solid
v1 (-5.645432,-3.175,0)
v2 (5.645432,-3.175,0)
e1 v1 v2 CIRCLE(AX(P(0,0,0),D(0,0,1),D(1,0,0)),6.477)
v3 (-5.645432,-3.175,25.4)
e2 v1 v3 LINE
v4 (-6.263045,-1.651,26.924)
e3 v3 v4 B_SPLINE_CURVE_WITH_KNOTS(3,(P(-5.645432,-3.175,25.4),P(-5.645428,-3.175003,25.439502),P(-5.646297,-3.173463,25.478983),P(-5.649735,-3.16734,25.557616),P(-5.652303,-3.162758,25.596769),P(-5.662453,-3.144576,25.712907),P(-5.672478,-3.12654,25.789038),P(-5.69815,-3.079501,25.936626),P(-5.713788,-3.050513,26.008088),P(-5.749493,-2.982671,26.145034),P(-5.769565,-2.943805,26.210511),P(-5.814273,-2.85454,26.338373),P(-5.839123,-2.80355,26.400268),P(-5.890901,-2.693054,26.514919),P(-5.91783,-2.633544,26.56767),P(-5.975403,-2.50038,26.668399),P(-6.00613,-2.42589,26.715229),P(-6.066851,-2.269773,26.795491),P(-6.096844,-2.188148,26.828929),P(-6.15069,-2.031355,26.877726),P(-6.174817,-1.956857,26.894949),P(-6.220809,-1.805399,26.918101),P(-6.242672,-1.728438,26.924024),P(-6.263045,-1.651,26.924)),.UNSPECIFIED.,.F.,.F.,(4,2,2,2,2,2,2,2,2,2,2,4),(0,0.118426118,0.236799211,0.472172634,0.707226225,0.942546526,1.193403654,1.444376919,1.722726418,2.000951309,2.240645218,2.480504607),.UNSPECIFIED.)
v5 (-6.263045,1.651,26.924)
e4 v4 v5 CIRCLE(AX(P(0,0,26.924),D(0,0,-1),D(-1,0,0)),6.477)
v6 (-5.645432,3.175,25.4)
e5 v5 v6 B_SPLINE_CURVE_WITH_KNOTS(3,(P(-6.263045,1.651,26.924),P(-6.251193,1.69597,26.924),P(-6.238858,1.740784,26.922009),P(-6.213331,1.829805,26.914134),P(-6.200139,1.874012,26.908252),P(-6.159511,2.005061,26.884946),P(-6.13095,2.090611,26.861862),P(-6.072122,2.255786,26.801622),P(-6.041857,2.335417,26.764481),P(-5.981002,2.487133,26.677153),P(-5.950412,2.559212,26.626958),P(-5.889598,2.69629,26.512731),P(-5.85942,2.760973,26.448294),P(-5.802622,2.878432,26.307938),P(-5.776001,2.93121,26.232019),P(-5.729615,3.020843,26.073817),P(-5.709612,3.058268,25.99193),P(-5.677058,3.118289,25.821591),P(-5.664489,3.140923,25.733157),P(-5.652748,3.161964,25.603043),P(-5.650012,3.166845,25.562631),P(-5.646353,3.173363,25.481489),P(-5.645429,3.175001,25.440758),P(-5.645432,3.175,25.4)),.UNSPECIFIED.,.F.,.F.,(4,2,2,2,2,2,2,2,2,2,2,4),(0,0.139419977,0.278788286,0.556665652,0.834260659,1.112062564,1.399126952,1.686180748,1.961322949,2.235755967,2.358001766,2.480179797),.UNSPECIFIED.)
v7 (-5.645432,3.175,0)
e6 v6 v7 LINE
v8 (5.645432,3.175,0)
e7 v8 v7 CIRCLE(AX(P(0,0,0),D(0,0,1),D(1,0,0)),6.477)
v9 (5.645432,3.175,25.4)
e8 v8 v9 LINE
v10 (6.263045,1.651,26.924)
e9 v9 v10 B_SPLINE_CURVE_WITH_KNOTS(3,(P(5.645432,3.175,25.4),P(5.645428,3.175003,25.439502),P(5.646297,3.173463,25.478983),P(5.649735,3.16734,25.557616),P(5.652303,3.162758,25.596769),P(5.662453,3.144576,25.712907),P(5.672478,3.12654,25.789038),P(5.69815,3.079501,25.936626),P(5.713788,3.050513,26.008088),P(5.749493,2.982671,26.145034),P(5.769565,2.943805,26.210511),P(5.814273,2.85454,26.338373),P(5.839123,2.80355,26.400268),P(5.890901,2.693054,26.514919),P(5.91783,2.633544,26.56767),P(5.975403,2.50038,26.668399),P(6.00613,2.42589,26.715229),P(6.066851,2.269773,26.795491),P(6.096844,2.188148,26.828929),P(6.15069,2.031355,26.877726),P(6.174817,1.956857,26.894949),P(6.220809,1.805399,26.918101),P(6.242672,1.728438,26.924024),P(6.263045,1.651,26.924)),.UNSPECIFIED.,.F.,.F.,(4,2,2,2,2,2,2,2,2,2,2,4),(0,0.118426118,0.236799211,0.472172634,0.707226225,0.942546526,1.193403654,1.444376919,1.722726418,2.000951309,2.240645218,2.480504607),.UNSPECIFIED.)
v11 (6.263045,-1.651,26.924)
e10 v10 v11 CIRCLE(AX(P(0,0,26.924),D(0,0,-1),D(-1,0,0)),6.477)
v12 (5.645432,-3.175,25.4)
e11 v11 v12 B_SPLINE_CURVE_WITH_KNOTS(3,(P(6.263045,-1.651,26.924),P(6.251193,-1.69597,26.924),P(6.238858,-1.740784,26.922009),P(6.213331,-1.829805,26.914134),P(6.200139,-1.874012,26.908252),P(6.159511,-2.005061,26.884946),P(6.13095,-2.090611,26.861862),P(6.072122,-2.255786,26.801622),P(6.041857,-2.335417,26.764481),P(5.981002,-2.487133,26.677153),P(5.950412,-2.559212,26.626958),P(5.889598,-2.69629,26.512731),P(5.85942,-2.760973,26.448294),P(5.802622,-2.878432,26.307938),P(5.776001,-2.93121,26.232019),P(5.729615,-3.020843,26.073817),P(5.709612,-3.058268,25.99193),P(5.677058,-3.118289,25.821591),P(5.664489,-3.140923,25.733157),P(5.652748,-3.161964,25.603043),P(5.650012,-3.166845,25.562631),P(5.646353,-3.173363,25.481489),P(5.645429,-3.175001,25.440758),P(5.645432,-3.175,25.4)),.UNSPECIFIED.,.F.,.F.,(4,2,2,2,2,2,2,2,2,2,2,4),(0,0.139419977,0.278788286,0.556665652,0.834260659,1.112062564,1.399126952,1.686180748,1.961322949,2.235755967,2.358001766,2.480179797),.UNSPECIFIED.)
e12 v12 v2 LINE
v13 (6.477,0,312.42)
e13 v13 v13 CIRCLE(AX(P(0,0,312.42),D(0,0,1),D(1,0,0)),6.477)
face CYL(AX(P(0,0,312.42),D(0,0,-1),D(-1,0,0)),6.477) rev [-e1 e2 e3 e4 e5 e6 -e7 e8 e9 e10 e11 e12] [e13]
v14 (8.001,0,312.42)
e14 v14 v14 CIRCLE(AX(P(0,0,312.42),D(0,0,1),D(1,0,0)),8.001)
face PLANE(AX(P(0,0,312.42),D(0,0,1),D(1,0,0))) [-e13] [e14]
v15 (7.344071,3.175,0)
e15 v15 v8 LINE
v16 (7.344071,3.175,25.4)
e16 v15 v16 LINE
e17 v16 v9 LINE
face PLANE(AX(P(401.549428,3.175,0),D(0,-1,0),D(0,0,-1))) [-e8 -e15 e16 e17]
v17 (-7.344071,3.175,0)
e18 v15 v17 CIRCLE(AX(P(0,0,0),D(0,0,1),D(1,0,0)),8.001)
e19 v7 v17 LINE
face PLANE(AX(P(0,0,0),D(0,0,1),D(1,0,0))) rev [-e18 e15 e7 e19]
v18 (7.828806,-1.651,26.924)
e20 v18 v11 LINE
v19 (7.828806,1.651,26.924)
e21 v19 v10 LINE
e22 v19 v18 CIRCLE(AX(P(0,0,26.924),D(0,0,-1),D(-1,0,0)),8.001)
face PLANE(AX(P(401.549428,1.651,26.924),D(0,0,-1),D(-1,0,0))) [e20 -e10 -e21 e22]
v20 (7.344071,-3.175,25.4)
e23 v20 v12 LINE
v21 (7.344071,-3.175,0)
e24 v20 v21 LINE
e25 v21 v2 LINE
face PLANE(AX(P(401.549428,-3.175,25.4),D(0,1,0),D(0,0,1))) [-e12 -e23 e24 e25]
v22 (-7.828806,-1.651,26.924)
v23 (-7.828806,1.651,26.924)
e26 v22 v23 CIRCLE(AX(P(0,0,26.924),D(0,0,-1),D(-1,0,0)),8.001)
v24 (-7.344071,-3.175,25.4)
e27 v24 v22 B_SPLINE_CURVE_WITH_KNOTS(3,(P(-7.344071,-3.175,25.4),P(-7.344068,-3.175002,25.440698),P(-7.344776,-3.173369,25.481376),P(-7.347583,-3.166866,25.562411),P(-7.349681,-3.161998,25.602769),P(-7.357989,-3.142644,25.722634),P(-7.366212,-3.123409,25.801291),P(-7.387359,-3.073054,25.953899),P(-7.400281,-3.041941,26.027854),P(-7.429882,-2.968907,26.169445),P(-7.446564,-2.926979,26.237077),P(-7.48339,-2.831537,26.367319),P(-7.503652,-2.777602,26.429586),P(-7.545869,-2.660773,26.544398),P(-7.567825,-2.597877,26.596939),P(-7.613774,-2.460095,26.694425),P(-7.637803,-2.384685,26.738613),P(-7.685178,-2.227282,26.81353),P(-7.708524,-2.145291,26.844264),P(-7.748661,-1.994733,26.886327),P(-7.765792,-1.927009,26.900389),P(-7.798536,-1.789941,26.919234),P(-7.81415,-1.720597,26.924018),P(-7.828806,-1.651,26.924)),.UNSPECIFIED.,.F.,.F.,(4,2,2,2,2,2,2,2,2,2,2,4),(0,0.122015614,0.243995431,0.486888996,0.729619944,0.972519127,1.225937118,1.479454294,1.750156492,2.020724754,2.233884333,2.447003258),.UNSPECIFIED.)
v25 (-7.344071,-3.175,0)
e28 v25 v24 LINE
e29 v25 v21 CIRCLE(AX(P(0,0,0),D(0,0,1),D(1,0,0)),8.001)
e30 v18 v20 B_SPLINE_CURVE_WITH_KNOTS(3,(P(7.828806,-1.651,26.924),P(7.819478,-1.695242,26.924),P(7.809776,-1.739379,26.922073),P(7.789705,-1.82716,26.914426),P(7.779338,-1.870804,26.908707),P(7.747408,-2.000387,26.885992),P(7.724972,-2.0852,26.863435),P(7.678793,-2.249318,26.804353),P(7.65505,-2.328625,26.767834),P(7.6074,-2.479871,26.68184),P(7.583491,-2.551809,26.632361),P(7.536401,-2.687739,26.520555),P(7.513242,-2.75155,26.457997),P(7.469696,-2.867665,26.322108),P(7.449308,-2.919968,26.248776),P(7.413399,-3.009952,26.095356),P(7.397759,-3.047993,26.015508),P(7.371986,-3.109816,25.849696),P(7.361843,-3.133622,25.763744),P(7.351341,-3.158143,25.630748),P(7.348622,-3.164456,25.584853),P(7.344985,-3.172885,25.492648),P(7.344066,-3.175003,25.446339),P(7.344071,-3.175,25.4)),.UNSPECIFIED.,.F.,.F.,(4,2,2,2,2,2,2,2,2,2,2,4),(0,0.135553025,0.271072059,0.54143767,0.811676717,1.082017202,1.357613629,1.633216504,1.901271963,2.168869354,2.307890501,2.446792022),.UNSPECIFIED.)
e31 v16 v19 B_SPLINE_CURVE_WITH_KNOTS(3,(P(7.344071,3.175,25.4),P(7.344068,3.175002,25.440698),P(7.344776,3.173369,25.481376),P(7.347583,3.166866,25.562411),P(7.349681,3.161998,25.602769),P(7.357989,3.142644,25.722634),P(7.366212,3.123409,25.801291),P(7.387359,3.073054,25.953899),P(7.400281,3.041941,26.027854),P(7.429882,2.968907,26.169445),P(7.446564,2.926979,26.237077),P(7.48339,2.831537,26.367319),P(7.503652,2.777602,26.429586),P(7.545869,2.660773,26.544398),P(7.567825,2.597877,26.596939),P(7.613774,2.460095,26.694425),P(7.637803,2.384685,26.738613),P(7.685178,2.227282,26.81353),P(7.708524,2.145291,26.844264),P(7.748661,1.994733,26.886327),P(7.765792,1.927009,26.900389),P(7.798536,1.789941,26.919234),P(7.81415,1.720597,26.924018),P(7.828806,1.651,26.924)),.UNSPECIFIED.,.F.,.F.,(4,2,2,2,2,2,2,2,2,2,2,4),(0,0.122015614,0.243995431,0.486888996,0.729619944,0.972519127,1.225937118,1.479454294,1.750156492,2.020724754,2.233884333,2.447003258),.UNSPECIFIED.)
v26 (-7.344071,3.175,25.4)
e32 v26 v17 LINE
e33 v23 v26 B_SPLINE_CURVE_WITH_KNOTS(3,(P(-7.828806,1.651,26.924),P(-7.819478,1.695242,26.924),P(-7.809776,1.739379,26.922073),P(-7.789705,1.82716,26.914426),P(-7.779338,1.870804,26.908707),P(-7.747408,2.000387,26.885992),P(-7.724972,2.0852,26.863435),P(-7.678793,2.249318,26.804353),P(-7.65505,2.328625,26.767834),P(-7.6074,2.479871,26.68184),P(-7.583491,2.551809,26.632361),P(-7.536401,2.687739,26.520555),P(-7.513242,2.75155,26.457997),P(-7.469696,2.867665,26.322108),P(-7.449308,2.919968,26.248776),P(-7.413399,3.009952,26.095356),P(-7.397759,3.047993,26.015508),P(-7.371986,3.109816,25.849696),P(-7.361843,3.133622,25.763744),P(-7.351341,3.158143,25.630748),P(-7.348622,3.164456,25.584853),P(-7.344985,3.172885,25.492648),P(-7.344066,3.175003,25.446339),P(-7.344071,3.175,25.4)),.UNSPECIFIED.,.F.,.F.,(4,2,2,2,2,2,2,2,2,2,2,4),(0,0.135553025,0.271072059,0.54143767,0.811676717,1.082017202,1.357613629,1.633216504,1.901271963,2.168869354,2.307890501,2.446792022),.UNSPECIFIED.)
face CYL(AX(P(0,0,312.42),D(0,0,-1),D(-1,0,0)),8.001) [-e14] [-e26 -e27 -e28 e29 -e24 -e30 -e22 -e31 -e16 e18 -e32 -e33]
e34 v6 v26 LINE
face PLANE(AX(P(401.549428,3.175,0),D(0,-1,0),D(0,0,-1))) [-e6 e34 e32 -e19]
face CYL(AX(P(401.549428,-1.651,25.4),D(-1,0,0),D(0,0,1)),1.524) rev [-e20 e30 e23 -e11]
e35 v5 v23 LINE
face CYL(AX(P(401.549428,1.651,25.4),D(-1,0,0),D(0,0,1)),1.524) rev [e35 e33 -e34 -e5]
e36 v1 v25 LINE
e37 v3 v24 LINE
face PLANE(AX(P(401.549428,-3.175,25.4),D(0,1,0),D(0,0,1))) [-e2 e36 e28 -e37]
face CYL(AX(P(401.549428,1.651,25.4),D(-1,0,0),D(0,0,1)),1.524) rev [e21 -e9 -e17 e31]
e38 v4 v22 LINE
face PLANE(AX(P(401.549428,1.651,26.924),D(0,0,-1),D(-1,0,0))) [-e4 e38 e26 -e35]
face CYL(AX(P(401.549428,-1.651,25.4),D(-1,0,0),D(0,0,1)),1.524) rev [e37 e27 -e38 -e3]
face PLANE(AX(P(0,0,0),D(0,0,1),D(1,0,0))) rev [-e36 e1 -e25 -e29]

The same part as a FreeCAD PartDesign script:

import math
import FreeCAD as App
import Part
import Sketcher

V = App.Vector
Q = App.Units.Quantity

doc = App.newDocument("Part")
body = doc.addObject("PartDesign::Body", "Body")

# Sketch on XY plane
sketch1 = body.newObject("Sketcher::SketchObject", "Sketch")
sketch1.AttachmentSupport = (doc.getObject("XY_Plane"), [""])
sketch1.MapMode = "FlatFace"
sketch1.addGeometry([
    Part.Circle(V(0, 0, 0), V(0, 0, 1), 8.001),
    Part.Circle(V(0, 0, 0), V(0, 0, 1), 6.477),
], False)
sketch1.addConstraint([
    Sketcher.Constraint("Coincident", 0, 3, -1, 1),
    Sketcher.Constraint("Coincident", 1, 3, -1, 1),
    Sketcher.Constraint("Diameter", 0, Q("0.63 in")),
    Sketcher.Constraint("Diameter", 1, Q("0.51 in")),
])
pad1 = body.newObject("PartDesign::Pad", "Pad")
pad1.Profile = sketch1
pad1.Length = Q("12.3 in")

# Sketch on YZ plane
sketch2 = body.newObject("Sketcher::SketchObject", "Sketch001")
sketch2.AttachmentSupport = (doc.getObject("YZ_Plane"), [""])
sketch2.MapMode = "FlatFace"
sketch2.addGeometry([
    Part.ArcOfCircle(Part.Circle(V(1.651, 25.4, 0), V(0, 0, 1), 1.524), math.radians(0), math.radians(90)),  # 0
    Part.LineSegment(V(1.651, 26.924, 0), V(-1.651, 26.924, 0)),  # 1
    Part.ArcOfCircle(Part.Circle(V(-1.651, 25.4, 0), V(0, 0, 1), 1.524), math.radians(90), math.radians(180)),  # 2
    Part.LineSegment(V(-3.175, 25.4, 0), V(-3.175, -1905.718992, 0)),  # 3
    Part.LineSegment(V(-3.175, -1905.718992, 0), V(3.175, -1905.718992, 0)),  # 4
    Part.LineSegment(V(3.175, -1905.718992, 0), V(3.175, 25.4, 0)),  # 5
], False)
sketch2.addConstraint([
    Sketcher.Constraint("Tangent", 0, 2, 1, 1),
    Sketcher.Constraint("Tangent", 1, 2, 2, 1),
    Sketcher.Constraint("Tangent", 2, 2, 3, 1),
    Sketcher.Constraint("Coincident", 3, 2, 4, 1),
    Sketcher.Constraint("Coincident", 4, 2, 5, 1),
    Sketcher.Constraint("Tangent", 5, 2, 0, 1),
    Sketcher.Constraint("Horizontal", 1),
    Sketcher.Constraint("Vertical", 3),
    Sketcher.Constraint("Horizontal", 4),
    Sketcher.Constraint("Vertical", 5),
    Sketcher.Constraint("Equal", 0, 2),
    Sketcher.Constraint("Radius", 0, Q("0.06 in")),
    Sketcher.Constraint("DistanceY", -1, 1, 0, 3, Q("1 in")),
    Sketcher.Constraint("DistanceX", 1, 2, 1, 1, Q("0.13 in")),
    Sketcher.Constraint("DistanceX", -1, 1, 0, 3, Q("0.065 in")),
    Sketcher.Constraint("DistanceY", 3, 2, 3, 1, 1931.118992),
])
pocket1 = body.newObject("PartDesign::Pocket", "Pocket")
pocket1.Profile = sketch2
pocket1.Type = "ThroughAll"
pocket1.Midplane = True

doc.recompute()
